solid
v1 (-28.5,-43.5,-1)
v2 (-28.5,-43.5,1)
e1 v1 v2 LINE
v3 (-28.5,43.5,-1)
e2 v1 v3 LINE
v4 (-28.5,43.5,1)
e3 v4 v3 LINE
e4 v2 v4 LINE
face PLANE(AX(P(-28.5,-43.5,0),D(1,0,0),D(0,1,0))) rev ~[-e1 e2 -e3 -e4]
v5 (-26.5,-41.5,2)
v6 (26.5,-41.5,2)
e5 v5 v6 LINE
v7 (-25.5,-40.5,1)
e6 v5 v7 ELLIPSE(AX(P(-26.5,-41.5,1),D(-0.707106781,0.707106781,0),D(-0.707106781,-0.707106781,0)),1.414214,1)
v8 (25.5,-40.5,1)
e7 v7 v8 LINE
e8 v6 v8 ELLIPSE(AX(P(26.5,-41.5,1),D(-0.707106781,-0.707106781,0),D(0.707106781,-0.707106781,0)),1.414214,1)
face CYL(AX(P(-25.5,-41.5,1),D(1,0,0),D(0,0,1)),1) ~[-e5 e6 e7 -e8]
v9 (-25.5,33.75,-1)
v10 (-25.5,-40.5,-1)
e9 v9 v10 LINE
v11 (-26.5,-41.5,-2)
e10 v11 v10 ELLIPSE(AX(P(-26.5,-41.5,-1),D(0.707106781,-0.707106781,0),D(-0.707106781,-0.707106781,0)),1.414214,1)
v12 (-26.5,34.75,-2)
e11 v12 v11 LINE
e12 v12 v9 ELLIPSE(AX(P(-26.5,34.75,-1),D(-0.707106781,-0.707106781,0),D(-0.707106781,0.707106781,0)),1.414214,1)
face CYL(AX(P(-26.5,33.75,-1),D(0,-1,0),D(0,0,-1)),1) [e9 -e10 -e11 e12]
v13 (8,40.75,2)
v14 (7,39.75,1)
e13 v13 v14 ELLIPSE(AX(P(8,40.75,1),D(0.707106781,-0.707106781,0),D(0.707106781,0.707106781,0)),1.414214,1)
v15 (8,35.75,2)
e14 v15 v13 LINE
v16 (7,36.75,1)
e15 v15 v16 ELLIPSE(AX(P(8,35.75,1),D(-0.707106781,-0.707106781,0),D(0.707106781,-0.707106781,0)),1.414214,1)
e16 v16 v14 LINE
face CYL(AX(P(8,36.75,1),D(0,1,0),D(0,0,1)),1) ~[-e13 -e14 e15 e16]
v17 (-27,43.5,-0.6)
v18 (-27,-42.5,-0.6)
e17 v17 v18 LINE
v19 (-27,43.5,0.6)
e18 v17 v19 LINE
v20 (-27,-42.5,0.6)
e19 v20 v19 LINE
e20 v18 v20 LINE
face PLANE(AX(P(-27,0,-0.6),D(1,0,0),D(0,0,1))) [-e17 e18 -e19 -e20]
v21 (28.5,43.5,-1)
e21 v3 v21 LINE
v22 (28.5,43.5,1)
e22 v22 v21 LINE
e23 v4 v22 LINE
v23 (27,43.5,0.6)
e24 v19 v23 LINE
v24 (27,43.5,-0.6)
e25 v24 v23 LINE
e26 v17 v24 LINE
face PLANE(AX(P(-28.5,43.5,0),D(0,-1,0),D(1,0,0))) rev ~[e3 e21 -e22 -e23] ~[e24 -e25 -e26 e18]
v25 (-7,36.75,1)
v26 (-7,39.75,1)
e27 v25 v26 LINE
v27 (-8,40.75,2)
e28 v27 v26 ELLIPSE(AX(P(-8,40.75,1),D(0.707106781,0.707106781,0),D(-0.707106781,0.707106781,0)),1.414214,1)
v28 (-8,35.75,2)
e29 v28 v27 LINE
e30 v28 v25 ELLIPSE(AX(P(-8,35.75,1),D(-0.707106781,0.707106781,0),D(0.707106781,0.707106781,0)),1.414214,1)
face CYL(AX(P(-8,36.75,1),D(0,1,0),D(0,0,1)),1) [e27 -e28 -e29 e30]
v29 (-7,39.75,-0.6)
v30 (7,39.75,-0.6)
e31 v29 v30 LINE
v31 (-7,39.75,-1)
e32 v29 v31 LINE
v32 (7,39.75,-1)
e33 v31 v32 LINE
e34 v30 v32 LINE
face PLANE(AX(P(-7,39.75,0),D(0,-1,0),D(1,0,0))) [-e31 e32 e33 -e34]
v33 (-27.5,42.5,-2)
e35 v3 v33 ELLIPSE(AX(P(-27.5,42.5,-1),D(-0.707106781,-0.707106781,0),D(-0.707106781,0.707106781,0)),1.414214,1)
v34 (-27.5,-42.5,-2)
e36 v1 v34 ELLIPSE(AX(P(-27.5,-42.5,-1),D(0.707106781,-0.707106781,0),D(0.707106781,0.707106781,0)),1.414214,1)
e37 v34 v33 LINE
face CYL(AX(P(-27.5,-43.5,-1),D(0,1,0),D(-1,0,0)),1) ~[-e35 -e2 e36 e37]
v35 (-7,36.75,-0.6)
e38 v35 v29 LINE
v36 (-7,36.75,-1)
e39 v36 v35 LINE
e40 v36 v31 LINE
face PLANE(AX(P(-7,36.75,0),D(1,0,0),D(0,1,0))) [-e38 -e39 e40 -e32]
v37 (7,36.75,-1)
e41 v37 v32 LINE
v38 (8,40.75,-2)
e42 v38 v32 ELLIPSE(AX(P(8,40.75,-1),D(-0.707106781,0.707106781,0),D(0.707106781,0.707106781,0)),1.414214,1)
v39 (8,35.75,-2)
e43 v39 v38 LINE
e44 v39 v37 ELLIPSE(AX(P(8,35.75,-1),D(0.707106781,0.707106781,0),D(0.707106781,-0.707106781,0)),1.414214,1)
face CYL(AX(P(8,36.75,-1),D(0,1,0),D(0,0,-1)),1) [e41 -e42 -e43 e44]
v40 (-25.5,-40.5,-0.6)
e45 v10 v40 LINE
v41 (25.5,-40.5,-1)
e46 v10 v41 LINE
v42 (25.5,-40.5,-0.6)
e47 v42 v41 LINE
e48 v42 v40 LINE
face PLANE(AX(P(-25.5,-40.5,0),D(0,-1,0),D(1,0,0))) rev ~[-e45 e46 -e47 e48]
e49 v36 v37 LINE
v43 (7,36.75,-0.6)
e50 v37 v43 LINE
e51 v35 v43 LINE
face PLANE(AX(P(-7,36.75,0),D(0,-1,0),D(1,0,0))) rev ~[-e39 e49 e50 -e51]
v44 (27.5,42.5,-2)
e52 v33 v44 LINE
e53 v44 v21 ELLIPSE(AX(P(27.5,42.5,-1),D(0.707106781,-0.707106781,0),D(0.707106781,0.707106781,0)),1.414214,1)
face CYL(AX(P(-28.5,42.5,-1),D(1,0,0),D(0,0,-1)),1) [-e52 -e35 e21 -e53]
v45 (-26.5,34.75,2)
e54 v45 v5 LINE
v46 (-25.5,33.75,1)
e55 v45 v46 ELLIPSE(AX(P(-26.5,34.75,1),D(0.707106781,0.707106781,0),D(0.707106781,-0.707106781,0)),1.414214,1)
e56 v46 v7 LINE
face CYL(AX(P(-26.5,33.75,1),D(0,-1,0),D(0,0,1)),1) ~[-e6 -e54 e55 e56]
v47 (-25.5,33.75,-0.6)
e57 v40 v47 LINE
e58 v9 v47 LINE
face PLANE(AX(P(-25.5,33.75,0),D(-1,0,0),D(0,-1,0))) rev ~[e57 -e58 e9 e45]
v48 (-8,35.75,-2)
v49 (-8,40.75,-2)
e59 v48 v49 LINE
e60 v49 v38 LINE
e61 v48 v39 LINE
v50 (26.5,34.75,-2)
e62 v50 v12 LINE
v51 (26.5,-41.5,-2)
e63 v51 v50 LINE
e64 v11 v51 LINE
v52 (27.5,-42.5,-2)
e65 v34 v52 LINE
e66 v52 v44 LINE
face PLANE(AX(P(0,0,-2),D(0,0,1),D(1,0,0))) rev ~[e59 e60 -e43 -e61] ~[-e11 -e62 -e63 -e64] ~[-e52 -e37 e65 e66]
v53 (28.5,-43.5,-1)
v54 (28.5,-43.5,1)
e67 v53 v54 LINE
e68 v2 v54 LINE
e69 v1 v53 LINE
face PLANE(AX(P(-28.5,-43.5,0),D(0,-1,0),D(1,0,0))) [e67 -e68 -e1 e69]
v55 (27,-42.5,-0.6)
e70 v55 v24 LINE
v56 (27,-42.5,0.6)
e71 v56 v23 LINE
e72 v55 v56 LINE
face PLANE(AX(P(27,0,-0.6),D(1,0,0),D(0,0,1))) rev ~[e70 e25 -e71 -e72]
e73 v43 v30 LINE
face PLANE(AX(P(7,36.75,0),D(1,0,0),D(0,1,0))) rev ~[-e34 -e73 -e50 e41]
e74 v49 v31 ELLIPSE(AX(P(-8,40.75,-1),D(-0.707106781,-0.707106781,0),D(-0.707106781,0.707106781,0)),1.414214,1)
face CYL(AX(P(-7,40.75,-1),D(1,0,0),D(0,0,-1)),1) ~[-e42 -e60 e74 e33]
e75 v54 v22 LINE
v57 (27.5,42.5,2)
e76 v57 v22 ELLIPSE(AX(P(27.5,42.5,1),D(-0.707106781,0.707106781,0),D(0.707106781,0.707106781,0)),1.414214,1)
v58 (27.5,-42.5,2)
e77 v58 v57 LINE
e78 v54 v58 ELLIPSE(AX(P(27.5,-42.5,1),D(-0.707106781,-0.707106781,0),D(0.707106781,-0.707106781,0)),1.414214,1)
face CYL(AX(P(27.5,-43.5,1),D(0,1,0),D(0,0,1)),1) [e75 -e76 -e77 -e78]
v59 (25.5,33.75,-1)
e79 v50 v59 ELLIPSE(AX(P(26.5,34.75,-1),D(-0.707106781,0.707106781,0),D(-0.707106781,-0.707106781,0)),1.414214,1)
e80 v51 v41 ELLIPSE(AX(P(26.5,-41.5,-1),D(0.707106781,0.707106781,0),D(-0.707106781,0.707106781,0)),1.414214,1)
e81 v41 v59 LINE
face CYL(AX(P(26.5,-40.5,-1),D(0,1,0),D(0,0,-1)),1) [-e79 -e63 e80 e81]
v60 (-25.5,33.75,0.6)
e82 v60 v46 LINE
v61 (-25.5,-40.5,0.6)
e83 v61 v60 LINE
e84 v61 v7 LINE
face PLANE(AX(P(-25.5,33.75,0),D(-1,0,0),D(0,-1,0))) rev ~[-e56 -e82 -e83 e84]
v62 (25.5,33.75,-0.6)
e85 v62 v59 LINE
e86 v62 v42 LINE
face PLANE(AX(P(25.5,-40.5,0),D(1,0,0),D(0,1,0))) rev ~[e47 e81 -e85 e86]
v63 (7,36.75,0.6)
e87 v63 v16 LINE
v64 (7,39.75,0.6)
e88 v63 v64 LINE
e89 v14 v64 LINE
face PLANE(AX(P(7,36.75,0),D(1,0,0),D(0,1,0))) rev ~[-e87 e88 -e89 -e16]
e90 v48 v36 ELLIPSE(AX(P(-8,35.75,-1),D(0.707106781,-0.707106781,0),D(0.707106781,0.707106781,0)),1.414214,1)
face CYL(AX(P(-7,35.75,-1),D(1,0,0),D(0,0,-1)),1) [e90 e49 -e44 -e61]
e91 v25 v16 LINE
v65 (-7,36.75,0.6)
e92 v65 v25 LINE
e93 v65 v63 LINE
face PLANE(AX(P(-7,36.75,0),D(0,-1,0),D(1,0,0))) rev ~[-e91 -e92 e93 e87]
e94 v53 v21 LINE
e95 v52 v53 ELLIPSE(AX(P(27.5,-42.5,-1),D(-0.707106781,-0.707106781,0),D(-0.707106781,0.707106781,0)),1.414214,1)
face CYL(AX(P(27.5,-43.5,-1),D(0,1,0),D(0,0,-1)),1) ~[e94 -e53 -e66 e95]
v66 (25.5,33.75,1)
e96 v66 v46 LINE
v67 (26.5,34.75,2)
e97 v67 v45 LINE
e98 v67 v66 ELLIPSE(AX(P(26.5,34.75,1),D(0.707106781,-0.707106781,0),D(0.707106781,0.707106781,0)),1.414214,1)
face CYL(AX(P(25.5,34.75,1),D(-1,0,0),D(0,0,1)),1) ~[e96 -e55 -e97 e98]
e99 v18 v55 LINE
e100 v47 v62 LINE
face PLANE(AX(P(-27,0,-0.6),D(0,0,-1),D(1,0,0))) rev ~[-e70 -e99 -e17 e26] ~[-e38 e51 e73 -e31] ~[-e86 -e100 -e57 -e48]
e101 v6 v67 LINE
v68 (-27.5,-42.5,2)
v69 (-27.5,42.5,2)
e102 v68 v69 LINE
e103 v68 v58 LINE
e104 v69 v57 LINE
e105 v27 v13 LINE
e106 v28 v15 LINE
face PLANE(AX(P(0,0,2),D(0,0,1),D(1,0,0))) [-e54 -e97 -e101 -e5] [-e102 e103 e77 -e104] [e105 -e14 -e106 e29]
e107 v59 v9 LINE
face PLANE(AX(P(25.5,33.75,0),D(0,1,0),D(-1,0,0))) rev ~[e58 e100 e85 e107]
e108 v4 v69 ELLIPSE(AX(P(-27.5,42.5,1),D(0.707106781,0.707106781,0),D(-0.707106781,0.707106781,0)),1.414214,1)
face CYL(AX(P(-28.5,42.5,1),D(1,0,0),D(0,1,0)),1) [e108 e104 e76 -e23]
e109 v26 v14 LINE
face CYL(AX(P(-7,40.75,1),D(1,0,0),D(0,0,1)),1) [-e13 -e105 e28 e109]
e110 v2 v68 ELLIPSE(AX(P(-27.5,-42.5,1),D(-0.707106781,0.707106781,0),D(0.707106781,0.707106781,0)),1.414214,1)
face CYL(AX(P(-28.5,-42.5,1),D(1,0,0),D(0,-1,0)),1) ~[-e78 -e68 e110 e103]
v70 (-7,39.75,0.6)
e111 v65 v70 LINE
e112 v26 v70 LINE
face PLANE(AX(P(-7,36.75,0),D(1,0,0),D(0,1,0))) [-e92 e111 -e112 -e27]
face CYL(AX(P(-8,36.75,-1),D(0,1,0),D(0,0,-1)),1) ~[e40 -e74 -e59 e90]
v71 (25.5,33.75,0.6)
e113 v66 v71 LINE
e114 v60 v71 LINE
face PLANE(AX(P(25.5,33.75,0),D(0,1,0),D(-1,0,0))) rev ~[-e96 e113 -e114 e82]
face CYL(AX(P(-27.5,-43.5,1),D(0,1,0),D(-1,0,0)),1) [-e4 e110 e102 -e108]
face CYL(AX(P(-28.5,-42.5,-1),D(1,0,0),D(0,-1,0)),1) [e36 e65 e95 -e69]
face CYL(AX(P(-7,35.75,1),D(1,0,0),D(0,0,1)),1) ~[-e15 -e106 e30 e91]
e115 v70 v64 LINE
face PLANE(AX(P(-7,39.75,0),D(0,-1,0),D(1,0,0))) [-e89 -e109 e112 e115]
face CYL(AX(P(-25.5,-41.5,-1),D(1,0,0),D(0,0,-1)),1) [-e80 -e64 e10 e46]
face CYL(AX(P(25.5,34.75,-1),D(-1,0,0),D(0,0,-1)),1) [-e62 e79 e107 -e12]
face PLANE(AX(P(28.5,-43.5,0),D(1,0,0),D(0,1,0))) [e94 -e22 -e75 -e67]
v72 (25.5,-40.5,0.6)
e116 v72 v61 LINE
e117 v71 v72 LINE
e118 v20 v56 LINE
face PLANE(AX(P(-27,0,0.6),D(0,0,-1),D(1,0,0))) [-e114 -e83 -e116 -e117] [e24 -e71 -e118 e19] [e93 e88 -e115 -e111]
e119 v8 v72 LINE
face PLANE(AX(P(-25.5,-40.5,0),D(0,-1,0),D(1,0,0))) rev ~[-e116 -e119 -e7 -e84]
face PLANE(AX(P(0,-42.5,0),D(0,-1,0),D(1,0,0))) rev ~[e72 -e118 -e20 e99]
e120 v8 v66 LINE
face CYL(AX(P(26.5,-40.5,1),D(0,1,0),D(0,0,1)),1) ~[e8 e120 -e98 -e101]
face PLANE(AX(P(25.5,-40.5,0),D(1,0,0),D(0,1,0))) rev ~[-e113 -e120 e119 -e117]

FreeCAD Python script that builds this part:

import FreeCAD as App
import Part
import Sketcher
from FreeCAD import Vector
Q = App.Units.Quantity


def edges_at(feature, points):
    """Names of the edges that pass closest to the given points."""
    edges = feature.Shape.Edges
    near = lambda p: min(range(len(edges)), key=lambda i: edges[i].distToShape(Part.Vertex(*p))[0])
    return sorted({f"Edge{near(p) + 1}" for p in points})

doc = App.newDocument("Part")
body = doc.addObject("PartDesign::Body", "Body")

# Sketch on XY plane
sketch1 = body.newObject("Sketcher::SketchObject", "Sketch")
sketch1.AttachmentSupport = (doc.getObject("XY_Plane"), [""])
sketch1.MapMode = "FlatFace"
sketch1.addGeometry([
    Part.LineSegment(Vector(-28.5, 43.5, 0), Vector(-28.5, -43.5, 0)),
    Part.LineSegment(Vector(-28.5, -43.5, 0), Vector(28.5, -43.5, 0)),
    Part.LineSegment(Vector(28.5, -43.5, 0), Vector(28.5, 43.5, 0)),
    Part.LineSegment(Vector(28.5, 43.5, 0), Vector(-28.5, 43.5, 0)),
], False)
sketch1.addConstraint([
    Sketcher.Constraint("Coincident", 0, 2, 1, 1),
    Sketcher.Constraint("Coincident", 1, 2, 2, 1),
    Sketcher.Constraint("Coincident", 2, 2, 3, 1),
    Sketcher.Constraint("Coincident", 3, 2, 0, 1),
    Sketcher.Constraint("Vertical", 0),
    Sketcher.Constraint("Horizontal", 1),
    Sketcher.Constraint("Vertical", 2),
    Sketcher.Constraint("Horizontal", 3),
    Sketcher.Constraint("Symmetric", 0, 2, 2, 2, -1, 1),
    Sketcher.Constraint("DistanceX", 1, 1, 1, 2, Q("57 mm")),
    Sketcher.Constraint("DistanceY", 0, 2, 0, 1, Q("87 mm")),
])
pad1 = body.newObject("PartDesign::Pad", "Pad")
pad1.Profile = sketch1
pad1.Length = 4
pad1.Midplane = True

# Sketch on XY plane
sketch2 = body.newObject("Sketcher::SketchObject", "Sketch001")
sketch2.AttachmentSupport = (doc.getObject("XY_Plane"), [""])
sketch2.MapMode = "FlatFace"
sketch2.addGeometry([
    Part.LineSegment(Vector(-7, 39.75, 0), Vector(-7, 36.75, 0)),
    Part.LineSegment(Vector(-7, 36.75, 0), Vector(7, 36.75, 0)),
    Part.LineSegment(Vector(7, 36.75, 0), Vector(7, 39.75, 0)),
    Part.LineSegment(Vector(7, 39.75, 0), Vector(-7, 39.75, 0)),
], False)
sketch2.addConstraint([
    Sketcher.Constraint("Coincident", 0, 2, 1, 1),
    Sketcher.Constraint("Coincident", 1, 2, 2, 1),
    Sketcher.Constraint("Coincident", 2, 2, 3, 1),
    Sketcher.Constraint("Coincident", 3, 2, 0, 1),
    Sketcher.Constraint("Vertical", 0),
    Sketcher.Constraint("Horizontal", 1),
    Sketcher.Constraint("Vertical", 2),
    Sketcher.Constraint("Horizontal", 3),
    Sketcher.Constraint("DistanceX", 1, 1, 1, 2, Q("14 mm")),
    Sketcher.Constraint("DistanceY", 0, 2, 0, 1, Q("3 mm")),
    Sketcher.Constraint("DistanceX", 0, 2, -1, 1, Q("7 mm")),
    Sketcher.Constraint("DistanceY", -1, 1, 0, 2, Q("36.75 mm")),
])
pocket1 = body.newObject("PartDesign::Pocket", "Pocket")
pocket1.Profile = sketch2
pocket1.Length = 25
pocket1.Midplane = True

# Sketch on XZ plane
sketch3 = body.newObject("Sketcher::SketchObject", "Sketch002")
sketch3.AttachmentSupport = (doc.getObject("XZ_Plane"), [""])
sketch3.MapMode = "FlatFace"
sketch3.addGeometry([
    Part.LineSegment(Vector(-27, 0.6, 0), Vector(-27, -0.6, 0)),
    Part.LineSegment(Vector(-27, -0.6, 0), Vector(27, -0.6, 0)),
    Part.LineSegment(Vector(27, -0.6, 0), Vector(27, 0.6, 0)),
    Part.LineSegment(Vector(27, 0.6, 0), Vector(-27, 0.6, 0)),
], False)
sketch3.addConstraint([
    Sketcher.Constraint("Coincident", 0, 2, 1, 1),
    Sketcher.Constraint("Coincident", 1, 2, 2, 1),
    Sketcher.Constraint("Coincident", 2, 2, 3, 1),
    Sketcher.Constraint("Coincident", 3, 2, 0, 1),
    Sketcher.Constraint("Vertical", 0),
    Sketcher.Constraint("Horizontal", 1),
    Sketcher.Constraint("Vertical", 2),
    Sketcher.Constraint("Horizontal", 3),
    Sketcher.Constraint("Symmetric", 0, 2, 2, 2, -1, 1),
    Sketcher.Constraint("DistanceX", 1, 1, 1, 2, Q("54 mm")),
    Sketcher.Constraint("DistanceY", 0, 2, 0, 1, Q("1.2 mm")),
])
pocket2 = body.newObject("PartDesign::Pocket", "Pocket001")
pocket2.Profile = sketch3
pocket2.Type = "TwoLengths"
pocket2.Length = 50
pocket2.Length2 = 42.5

# Sketch on XY plane
sketch4 = body.newObject("Sketcher::SketchObject", "Sketch003")
sketch4.AttachmentSupport = (doc.getObject("XY_Plane"), [""])
sketch4.MapMode = "FlatFace"
sketch4.addGeometry([
    Part.LineSegment(Vector(25.5, 33.75, 0), Vector(-25.5, 33.75, 0)),
    Part.LineSegment(Vector(-25.5, 33.75, 0), Vector(-25.5, -40.5, 0)),
    Part.LineSegment(Vector(-25.5, -40.5, 0), Vector(25.5, -40.5, 0)),
    Part.LineSegment(Vector(25.5, -40.5, 0), Vector(25.5, 33.75, 0)),
], False)
sketch4.addConstraint([
    Sketcher.Constraint("Coincident", 0, 2, 1, 1),
    Sketcher.Constraint("Coincident", 1, 2, 2, 1),
    Sketcher.Constraint("Coincident", 2, 2, 3, 1),
    Sketcher.Constraint("Coincident", 3, 2, 0, 1),
    Sketcher.Constraint("Horizontal", 0),
    Sketcher.Constraint("Vertical", 1),
    Sketcher.Constraint("Horizontal", 2),
    Sketcher.Constraint("Vertical", 3),
    Sketcher.Constraint("DistanceX", 0, 2, 0, 1, Q("51 mm")),
    Sketcher.Constraint("DistanceY", 1, 2, 1, 1, Q("74.25 mm")),
    Sketcher.Constraint("DistanceX", 0, 2, -1, 1, Q("25.5 mm")),
    Sketcher.Constraint("DistanceY", 1, 2, -1, 1, Q("40.5 mm")),
])
pocket3 = body.newObject("PartDesign::Pocket", "Pocket002")
pocket3.Profile = sketch4
pocket3.Length = 25
pocket3.Midplane = True
doc.recompute()

fillet = body.newObject("PartDesign::Fillet", "Fillet")
fillet.Base = (pocket3, edges_at(pocket3, [
    (-28.5, 0, 2),
    (-25.5, -3.375, 2),
    (0, -40.5, 2),
    (0, -43.5, 2),
    (25.5, -3.375, 2),
    (28.5, 0, 2),
    (0, 33.75, 2),
    (0, 43.5, 2),
    (-28.5, 0, -2),
    (0, 43.5, -2),
    (0, 33.75, -2),
    (25.5, -3.375, -2),
    (-25.5, -3.375, -2),
    (28.5, 0, -2),
    (0, -40.5, -2),
    (0, 36.75, -2),
    (7, 38.25, -2),
    (-7, 38.25, -2),
    (0, 39.75, -2),
    (0, 36.75, 2),
    (-7, 38.25, 2),
    (7, 38.25, 2),
    (0, -43.5, -2),
    (0, 39.75, 2),
]))
fillet.Radius = 1

doc.recompute()
